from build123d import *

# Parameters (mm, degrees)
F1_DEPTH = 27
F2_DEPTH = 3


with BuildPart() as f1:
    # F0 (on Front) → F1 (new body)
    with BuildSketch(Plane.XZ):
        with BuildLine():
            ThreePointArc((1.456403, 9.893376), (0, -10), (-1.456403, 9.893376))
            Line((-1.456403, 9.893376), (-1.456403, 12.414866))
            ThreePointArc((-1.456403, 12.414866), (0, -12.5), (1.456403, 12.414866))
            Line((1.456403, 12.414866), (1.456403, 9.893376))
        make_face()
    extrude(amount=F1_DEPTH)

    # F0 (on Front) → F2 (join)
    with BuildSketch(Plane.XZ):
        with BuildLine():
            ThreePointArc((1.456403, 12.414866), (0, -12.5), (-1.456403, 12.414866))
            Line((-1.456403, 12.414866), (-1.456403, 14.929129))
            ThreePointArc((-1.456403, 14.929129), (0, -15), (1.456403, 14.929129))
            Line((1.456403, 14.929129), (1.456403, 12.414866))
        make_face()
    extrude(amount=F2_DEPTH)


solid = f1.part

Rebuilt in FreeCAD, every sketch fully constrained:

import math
import FreeCAD as App
import Part
import Sketcher
from FreeCAD import Vector

doc = App.newDocument("Part")
body = doc.addObject("PartDesign::Body", "Body")

# Sketch on XZ plane
sketch1 = doc.addObject("Sketcher::SketchObject", "Sketch")
body.addObject(sketch1)
sketch1.AttachmentSupport = (doc.XZ_Plane, [""])
sketch1.MapMode = "FlatFace"
sketch1.addGeometry([
    Part.ArcOfCircle(Part.Circle(Vector(0, 0, 0), Vector(0, 0, 1), 10), math.radians(98), math.radians(442)),
    Part.LineSegment(Vector(-1.5, 9.9, 0), Vector(-1.5, 12.4, 0)),
    Part.ArcOfCircle(Part.Circle(Vector(0, 0, 0), Vector(0, 0, 1), 12.5), math.radians(97), math.radians(443)),
    Part.LineSegment(Vector(1.5, 12.4, 0), Vector(1.5, 9.9, 0)),
], False)
sketch1.addConstraint([
    Sketcher.Constraint("Coincident", 0, 1, 1, 1),
    Sketcher.Constraint("Coincident", 1, 2, 2, 1),
    Sketcher.Constraint("Coincident", 2, 2, 3, 1),
    Sketcher.Constraint("Coincident", 3, 2, 0, 2),
    Sketcher.Constraint("Vertical", 1),
    Sketcher.Constraint("Vertical", 3),
    Sketcher.Constraint("Coincident", 0, 3, -1, 1),
    Sketcher.Constraint("Coincident", 2, 3, -1, 1),
    Sketcher.Constraint("Horizontal", 1, 2, 2, 2),
    Sketcher.Constraint("Radius", 0, 10.0),
    Sketcher.Constraint("Radius", 2, 12.5),
    Sketcher.Constraint("DistanceY", 1, 1, 1, 2, 2.52149),
])
pad1 = doc.addObject("PartDesign::Pad", "Pad")
body.addObject(pad1)
pad1.Profile = sketch1
pad1.Length = 27

# Sketch on XZ plane
sketch2 = doc.addObject("Sketcher::SketchObject", "Sketch001")
body.addObject(sketch2)
sketch2.AttachmentSupport = (doc.XZ_Plane, [""])
sketch2.MapMode = "FlatFace"
sketch2.addGeometry([
    Part.ArcOfCircle(Part.Circle(Vector(0, 0, 0), Vector(0, 0, 1), 12.5), math.radians(97), math.radians(443)),
    Part.LineSegment(Vector(-1.5, 12.4, 0), Vector(-1.5, 14.9, 0)),
    Part.ArcOfCircle(Part.Circle(Vector(0, 0, 0), Vector(0, 0, 1), 15), math.radians(96), math.radians(444)),
    Part.LineSegment(Vector(1.5, 14.9, 0), Vector(1.5, 12.4, 0)),
], False)
sketch2.addConstraint([
    Sketcher.Constraint("Coincident", 0, 1, 1, 1),
    Sketcher.Constraint("Coincident", 1, 2, 2, 1),
    Sketcher.Constraint("Coincident", 2, 2, 3, 1),
    Sketcher.Constraint("Coincident", 3, 2, 0, 2),
    Sketcher.Constraint("Vertical", 1),
    Sketcher.Constraint("Vertical", 3),
    Sketcher.Constraint("Coincident", 0, 3, -1, 1),
    Sketcher.Constraint("Coincident", 2, 3, -1, 1),
    Sketcher.Constraint("Horizontal", 1, 2, 2, 2),
    Sketcher.Constraint("Radius", 2, 15.0),
    Sketcher.Constraint("Radius", 0, 12.5),
    Sketcher.Constraint("DistanceY", 1, 1, 1, 2, 2.514263),
])
pad2 = doc.addObject("PartDesign::Pad", "Pad001")
body.addObject(pad2)
pad2.Profile = sketch2
pad2.Length = 3

doc.recompute()
